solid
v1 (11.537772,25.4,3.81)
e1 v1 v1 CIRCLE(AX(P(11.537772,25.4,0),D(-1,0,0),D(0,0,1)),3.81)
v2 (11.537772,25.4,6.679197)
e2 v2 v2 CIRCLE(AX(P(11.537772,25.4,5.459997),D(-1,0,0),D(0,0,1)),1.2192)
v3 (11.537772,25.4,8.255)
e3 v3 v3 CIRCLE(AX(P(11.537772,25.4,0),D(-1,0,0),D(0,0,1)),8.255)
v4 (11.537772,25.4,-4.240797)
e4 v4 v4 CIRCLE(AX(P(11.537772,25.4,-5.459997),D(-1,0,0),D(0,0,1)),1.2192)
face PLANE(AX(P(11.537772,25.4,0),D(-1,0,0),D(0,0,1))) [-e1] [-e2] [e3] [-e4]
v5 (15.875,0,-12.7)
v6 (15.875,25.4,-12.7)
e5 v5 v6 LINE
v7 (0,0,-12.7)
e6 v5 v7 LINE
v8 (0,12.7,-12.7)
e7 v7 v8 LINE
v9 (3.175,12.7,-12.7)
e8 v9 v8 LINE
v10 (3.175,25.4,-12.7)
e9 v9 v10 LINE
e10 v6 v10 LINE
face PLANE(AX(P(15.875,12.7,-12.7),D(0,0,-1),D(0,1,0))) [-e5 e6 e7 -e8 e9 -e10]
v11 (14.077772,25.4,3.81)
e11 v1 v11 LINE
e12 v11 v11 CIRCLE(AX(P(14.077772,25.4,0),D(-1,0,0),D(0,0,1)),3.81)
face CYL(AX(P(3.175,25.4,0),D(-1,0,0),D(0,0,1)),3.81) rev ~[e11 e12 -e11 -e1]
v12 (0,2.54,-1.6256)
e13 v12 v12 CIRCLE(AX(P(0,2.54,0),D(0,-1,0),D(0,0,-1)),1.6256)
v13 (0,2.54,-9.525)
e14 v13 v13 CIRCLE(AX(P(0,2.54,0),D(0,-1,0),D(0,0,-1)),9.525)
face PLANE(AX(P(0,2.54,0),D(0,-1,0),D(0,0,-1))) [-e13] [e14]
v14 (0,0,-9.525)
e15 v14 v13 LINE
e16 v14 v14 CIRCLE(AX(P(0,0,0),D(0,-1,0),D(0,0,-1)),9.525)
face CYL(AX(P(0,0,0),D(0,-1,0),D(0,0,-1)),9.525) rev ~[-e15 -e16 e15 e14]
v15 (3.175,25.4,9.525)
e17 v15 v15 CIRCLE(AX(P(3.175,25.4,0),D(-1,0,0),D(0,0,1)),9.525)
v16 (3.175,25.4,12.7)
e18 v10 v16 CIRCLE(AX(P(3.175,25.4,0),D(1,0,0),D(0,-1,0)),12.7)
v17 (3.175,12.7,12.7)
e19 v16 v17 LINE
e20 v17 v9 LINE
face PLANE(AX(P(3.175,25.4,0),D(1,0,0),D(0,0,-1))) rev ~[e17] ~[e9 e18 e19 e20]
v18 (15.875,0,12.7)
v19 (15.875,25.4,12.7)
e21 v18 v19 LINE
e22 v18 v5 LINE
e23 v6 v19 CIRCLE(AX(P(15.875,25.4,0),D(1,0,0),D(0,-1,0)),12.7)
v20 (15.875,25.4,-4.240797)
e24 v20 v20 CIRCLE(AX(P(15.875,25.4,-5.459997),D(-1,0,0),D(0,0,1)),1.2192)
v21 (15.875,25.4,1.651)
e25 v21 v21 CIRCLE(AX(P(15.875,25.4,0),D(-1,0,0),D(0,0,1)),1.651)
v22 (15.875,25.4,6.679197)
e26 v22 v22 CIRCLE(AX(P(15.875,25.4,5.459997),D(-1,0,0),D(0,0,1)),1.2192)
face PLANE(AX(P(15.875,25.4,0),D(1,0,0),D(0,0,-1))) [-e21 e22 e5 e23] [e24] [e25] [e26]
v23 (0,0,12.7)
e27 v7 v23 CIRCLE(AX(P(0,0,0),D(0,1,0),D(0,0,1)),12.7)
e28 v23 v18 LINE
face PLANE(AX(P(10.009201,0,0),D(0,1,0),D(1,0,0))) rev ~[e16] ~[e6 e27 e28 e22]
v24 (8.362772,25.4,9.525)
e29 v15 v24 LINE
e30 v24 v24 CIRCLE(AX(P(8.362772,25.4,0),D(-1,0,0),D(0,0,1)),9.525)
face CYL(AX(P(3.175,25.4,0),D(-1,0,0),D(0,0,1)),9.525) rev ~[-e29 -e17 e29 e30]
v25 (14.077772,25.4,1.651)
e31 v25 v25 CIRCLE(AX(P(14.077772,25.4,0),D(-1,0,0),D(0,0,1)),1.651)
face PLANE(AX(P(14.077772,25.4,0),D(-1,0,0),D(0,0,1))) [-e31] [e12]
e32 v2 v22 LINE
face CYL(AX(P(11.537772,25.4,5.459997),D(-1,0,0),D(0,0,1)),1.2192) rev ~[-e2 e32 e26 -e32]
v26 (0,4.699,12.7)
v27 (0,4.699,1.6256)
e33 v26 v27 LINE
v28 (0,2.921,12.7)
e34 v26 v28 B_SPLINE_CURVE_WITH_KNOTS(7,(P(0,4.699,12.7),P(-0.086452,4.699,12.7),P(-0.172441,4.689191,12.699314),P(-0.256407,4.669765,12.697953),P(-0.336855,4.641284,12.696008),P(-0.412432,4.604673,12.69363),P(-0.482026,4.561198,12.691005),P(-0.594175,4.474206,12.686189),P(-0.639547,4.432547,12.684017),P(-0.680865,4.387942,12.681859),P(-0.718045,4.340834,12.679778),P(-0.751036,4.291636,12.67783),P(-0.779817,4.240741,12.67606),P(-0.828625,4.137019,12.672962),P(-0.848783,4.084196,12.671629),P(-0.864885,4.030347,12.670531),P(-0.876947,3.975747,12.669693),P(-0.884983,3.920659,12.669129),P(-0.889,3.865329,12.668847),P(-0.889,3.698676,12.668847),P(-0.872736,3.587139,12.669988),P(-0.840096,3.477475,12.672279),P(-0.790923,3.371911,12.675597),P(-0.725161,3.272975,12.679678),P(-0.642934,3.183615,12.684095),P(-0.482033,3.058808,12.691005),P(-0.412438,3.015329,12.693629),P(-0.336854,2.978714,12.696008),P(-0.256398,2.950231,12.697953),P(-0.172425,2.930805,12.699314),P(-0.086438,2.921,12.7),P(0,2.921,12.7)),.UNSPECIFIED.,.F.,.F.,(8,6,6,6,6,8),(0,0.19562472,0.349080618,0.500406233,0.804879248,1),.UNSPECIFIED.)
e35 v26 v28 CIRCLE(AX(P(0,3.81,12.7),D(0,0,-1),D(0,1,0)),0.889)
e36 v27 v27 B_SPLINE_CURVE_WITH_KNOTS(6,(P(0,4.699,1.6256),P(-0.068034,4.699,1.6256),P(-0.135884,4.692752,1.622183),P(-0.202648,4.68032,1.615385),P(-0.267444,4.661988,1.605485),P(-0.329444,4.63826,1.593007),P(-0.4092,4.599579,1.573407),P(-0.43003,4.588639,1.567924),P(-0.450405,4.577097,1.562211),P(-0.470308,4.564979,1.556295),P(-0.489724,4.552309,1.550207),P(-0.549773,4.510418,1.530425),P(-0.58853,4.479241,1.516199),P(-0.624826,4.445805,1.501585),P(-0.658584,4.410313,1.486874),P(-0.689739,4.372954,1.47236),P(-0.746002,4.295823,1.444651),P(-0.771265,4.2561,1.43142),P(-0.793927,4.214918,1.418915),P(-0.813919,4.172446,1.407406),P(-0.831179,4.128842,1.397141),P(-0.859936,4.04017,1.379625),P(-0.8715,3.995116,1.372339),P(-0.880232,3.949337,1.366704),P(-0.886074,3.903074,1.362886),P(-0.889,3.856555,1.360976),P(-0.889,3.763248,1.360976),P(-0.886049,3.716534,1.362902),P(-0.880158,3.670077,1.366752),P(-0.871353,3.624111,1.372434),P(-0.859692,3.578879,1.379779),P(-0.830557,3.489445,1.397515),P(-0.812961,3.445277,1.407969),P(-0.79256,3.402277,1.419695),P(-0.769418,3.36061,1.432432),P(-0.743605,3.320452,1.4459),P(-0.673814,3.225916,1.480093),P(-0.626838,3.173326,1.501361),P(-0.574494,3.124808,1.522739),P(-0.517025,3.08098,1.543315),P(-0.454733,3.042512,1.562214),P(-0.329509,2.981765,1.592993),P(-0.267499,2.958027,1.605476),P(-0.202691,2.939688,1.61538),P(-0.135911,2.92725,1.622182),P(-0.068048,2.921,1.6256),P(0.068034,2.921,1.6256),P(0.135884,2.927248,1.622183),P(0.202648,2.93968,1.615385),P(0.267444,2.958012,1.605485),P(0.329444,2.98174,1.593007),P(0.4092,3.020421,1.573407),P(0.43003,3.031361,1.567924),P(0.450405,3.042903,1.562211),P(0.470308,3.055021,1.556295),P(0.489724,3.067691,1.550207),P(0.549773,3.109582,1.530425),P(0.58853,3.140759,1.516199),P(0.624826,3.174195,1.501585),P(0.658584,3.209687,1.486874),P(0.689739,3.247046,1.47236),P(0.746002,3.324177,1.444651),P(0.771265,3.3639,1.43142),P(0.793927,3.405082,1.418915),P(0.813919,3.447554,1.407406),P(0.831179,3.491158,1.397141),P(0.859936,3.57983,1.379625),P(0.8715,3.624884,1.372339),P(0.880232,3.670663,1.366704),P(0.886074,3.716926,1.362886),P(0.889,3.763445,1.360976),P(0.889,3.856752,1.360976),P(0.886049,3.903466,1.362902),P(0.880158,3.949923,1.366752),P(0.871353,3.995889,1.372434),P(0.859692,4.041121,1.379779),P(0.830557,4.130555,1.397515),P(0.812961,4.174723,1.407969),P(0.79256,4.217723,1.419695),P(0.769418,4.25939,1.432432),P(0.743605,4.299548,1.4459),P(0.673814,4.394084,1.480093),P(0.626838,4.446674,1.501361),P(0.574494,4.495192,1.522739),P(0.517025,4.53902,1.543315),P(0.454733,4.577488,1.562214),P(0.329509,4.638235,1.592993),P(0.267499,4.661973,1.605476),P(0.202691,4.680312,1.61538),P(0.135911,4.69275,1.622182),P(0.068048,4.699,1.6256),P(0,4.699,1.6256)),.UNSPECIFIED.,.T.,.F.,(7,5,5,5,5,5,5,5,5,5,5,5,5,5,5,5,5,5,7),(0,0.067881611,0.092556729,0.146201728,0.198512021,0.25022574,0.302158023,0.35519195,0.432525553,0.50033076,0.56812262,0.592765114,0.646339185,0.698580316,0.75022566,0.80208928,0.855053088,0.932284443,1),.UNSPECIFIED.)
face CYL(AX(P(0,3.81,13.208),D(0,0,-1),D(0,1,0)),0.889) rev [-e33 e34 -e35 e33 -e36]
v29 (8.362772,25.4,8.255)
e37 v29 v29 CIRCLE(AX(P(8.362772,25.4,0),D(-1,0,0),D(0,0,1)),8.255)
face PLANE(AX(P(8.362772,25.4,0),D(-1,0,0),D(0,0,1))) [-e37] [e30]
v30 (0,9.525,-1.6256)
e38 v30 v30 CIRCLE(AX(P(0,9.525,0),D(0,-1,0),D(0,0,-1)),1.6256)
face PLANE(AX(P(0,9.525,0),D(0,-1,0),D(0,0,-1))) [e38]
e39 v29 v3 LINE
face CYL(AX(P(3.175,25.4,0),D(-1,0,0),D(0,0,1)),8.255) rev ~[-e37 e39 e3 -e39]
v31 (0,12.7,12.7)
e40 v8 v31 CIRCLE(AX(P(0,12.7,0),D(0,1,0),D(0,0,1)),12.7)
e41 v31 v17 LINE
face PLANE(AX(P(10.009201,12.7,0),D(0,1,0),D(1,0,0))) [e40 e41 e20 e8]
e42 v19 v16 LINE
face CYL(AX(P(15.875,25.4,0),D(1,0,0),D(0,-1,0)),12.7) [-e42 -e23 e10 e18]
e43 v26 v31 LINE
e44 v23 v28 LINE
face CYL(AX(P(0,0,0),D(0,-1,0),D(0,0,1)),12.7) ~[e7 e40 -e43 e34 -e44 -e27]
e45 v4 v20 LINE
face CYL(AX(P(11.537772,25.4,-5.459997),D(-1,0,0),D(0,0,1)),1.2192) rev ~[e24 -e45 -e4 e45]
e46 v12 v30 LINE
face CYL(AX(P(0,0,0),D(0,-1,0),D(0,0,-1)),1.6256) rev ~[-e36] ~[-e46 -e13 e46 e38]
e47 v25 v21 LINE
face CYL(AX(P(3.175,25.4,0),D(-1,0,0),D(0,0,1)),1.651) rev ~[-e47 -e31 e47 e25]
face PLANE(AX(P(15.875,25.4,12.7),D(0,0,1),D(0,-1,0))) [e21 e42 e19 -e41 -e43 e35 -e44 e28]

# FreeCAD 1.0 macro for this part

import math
import FreeCAD as App
import Part
import Sketcher

V = App.Vector
Q = App.Units.Quantity

doc = App.newDocument("Part")
params = doc.addObject("Spreadsheet::Sheet", "Params")
for row, (alias, value) in enumerate([
    ("sketch1_diameter", "1 in"),
    ("pad1_length", "0.5 in"),
    ("sketch2_diameter", "0.128 in"),
    ("pocket1_length", "0.375 in"),
    ("sketch3_diameter", "0.75 in"),
    ("pocket2_length", "0.1 in"),
    ("sketch4_radius", "0.5 in"),
    ("sketch4_width", "0.625 in"),
    ("pad2_length", "0.5 in"),
    ("sketch5_height", "0.52 in"),
    ("sketch5_width", "0.035 in"),
    ("groove_angle", "360 deg"),
    ("sketch6_radius", "0.5 in"),
    ("sketch6_width", "0.5 in"),
    ("pad3_length", "0.5 in"),
    ("sketch7_diameter", "0.13 in"),
    ("pocket3_length", "0.5 in"),
    ("sketch8_diameter", "0.3 in"),
    ("pocket4_length", "10.902772 mm"),
    ("sketch9_diameter", "0.65 in"),
    ("pocket5_length", "8.362772 mm"),
    ("sketch10_diameter", "0.75 in"),
    ("pocket6_length", "5.187772 mm"),
    ("sketch11_diameter", "0.096 in"),
    ("pocket7_length", "4.337228 mm"),
], start=1):
    params.set(f"A{row}", alias)
    params.set(f"B{row}", "=" + value)
    params.setAlias(f"B{row}", alias)

body = doc.addObject("PartDesign::Body", "Body")

# Sketch on XZ plane
sketch1 = body.newObject("Sketcher::SketchObject", "Sketch")
sketch1.AttachmentSupport = (doc.getObject("XZ_Plane"), [""])
sketch1.MapMode = "FlatFace"
sketch1.addGeometry(Part.Circle(V(0, 0, 0), V(0, 0, 1), 12.7), False)
sketch1.addConstraint([
    Sketcher.Constraint("Coincident", 0, 3, -1, 1),
    Sketcher.Constraint("Diameter", 0, Q("1 in")),
])
sketch1.setExpression("Constraints[1]", "Params.sketch1_diameter")
pad1 = body.newObject("PartDesign::Pad", "Pad")
pad1.Profile = sketch1
pad1.setExpression("Length", "Params.pad1_length")
pad1.Reversed = True

# Sketch on XZ plane
sketch2 = body.newObject("Sketcher::SketchObject", "Sketch001")
sketch2.AttachmentSupport = (doc.getObject("XZ_Plane"), [""])
sketch2.MapMode = "FlatFace"
sketch2.addGeometry(Part.Circle(V(0, 0, 0), V(0, 0, 1), 1.6256), False)
sketch2.addConstraint([
    Sketcher.Constraint("Coincident", 0, 3, -1, 1),
    Sketcher.Constraint("Diameter", 0, Q("0.128 in")),
])
sketch2.setExpression("Constraints[1]", "Params.sketch2_diameter")
pocket1 = body.newObject("PartDesign::Pocket", "Pocket")
pocket1.Profile = sketch2
pocket1.setExpression("Length", "Params.pocket1_length")

# Sketch on XZ plane
sketch3 = body.newObject("Sketcher::SketchObject", "Sketch002")
sketch3.AttachmentSupport = (doc.getObject("XZ_Plane"), [""])
sketch3.MapMode = "FlatFace"
sketch3.addGeometry(Part.Circle(V(0, 0, 0), V(0, 0, 1), 9.525), False)
sketch3.addConstraint([
    Sketcher.Constraint("Coincident", 0, 3, -1, 1),
    Sketcher.Constraint("Diameter", 0, Q("0.75 in")),
])
sketch3.setExpression("Constraints[1]", "Params.sketch3_diameter")
pocket2 = body.newObject("PartDesign::Pocket", "Pocket001")
pocket2.Profile = sketch3
pocket2.setExpression("Length", "Params.pocket2_length")

# Sketch on XZ plane
sketch4 = body.newObject("Sketcher::SketchObject", "Sketch003")
sketch4.AttachmentSupport = (doc.getObject("XZ_Plane"), [""])
sketch4.MapMode = "FlatFace"
sketch4.addGeometry([
    Part.LineSegment(V(15.875, -12.7, 0), V(0, -12.7, 0)),  # 0
    Part.ArcOfCircle(Part.Circle(V(0, 0, 0), V(0, 0, 1), 12.7), math.radians(-90), math.radians(0)),  # 1
    Part.ArcOfCircle(Part.Circle(V(0, 0, 0), V(0, 0, 1), 12.7), math.radians(0), math.radians(90)),  # 2
    Part.LineSegment(V(0, 12.7, 0), V(15.875, 12.7, 0)),  # 3
    Part.LineSegment(V(15.875, 12.7, 0), V(15.875, -12.7, 0)),  # 4
], False)
sketch4.addConstraint([
    Sketcher.Constraint("Tangent", 0, 2, 1, 1),
    Sketcher.Constraint("Tangent", 1, 2, 2, 1),
    Sketcher.Constraint("Tangent", 2, 2, 3, 1),
    Sketcher.Constraint("Coincident", 3, 2, 4, 1),
    Sketcher.Constraint("Coincident", 4, 2, 0, 1),
    Sketcher.Constraint("Horizontal", 0),
    Sketcher.Constraint("Horizontal", 3),
    Sketcher.Constraint("Vertical", 4),
    Sketcher.Constraint("Coincident", 1, 3, -1, 1),
    Sketcher.Constraint("Equal", 1, 2),
    Sketcher.Constraint("PointOnObject", 1, 2, -1),
    Sketcher.Constraint("Radius", 1, Q("0.5 in")),
    Sketcher.Constraint("DistanceX", 0, 2, 0, 1, Q("0.625 in")),
])
sketch4.setExpression("Constraints[11]", "Params.sketch4_radius")
sketch4.setExpression("Constraints[12]", "Params.sketch4_width")
pad2 = body.newObject("PartDesign::Pad", "Pad001")
pad2.Profile = sketch4
pad2.setExpression("Length", "Params.pad2_length")
pad2.Reversed = True

# Sketch on YZ plane
sketch5 = body.newObject("Sketcher::SketchObject", "Sketch004")
sketch5.AttachmentSupport = (doc.getObject("YZ_Plane"), [""])
sketch5.MapMode = "FlatFace"
sketch5.addGeometry([
    Part.LineSegment(V(3.81, 13.742165, 0), V(3.81, 0, 0)),
    Part.LineSegment(V(3.81, 0, 0), V(4.699, 0, 0)),
    Part.LineSegment(V(4.699, 0, 0), V(4.699, 13.208, 0)),
    Part.LineSegment(V(4.699, 13.208, 0), V(3.81, 13.742165, 0)),
], False)
sketch5.addGeometry(Part.LineSegment(V(3.81, 0, 0), V(3.81, 13.742165, 0)), True)  # axis
sketch5.addConstraint([
    Sketcher.Constraint("Coincident", 0, 2, 1, 1),
    Sketcher.Constraint("Coincident", 1, 2, 2, 1),
    Sketcher.Constraint("Coincident", 2, 2, 3, 1),
    Sketcher.Constraint("Coincident", 3, 2, 0, 1),
    Sketcher.Constraint("Vertical", 0),
    Sketcher.Constraint("Horizontal", 1),
    Sketcher.Constraint("Vertical", 2),
    Sketcher.Constraint("Vertical", 4),
    Sketcher.Constraint("Coincident", 4, 1, 0, 2),
    Sketcher.Constraint("PointOnObject", 0, 2, -1),
    Sketcher.Constraint("Equal", 0, 4),
    Sketcher.Constraint("Angle", 3, Q("149 deg")),
    Sketcher.Constraint("DistanceY", 2, 1, 2, 2, Q("0.52 in")),
    Sketcher.Constraint("DistanceX", 1, 1, 1, 2, Q("0.035 in")),
    Sketcher.Constraint("DistanceX", -1, 1, 0, 2, Q("0.15 in")),
])
sketch5.setExpression("Constraints[12]", "Params.sketch5_height")
sketch5.setExpression("Constraints[13]", "Params.sketch5_width")
groove = body.newObject("PartDesign::Groove", "Groove")
groove.Profile = sketch5
groove.ReferenceAxis = (sketch5, ["Axis0"])
groove.setExpression("Angle", "Params.groove_angle")

# Sketch on YZ plane
sketch6 = body.newObject("Sketcher::SketchObject", "Sketch005")
sketch6.AttachmentSupport = (doc.getObject("YZ_Plane"), [""])
sketch6.MapMode = "FlatFace"
sketch6.AttachmentOffset = App.Placement(V(0, 0, 0.625 * 25.4), App.Rotation())
sketch6.addGeometry([
    Part.LineSegment(V(25.4, 12.7, 0), V(12.7, 12.7, 0)),
    Part.LineSegment(V(12.7, 12.7, 0), V(12.7, -12.7, 0)),
    Part.LineSegment(V(12.7, -12.7, 0), V(25.4, -12.7, 0)),
    Part.ArcOfCircle(Part.Circle(V(25.4, 0, 0), V(0, 0, 1), 12.7), math.radians(-90), math.radians(90)),
], False)
sketch6.addConstraint([
    Sketcher.Constraint("Coincident", 0, 2, 1, 1),
    Sketcher.Constraint("Coincident", 1, 2, 2, 1),
    Sketcher.Constraint("Tangent", 2, 2, 3, 1),
    Sketcher.Constraint("Tangent", 3, 2, 0, 1),
    Sketcher.Constraint("Horizontal", 0),
    Sketcher.Constraint("Vertical", 1),
    Sketcher.Constraint("Horizontal", 2),
    Sketcher.Constraint("PointOnObject", 3, 3, -1),
    Sketcher.Constraint("Radius", 3, Q("0.5 in")),
    Sketcher.Constraint("DistanceX", 0, 2, 0, 1, Q("0.5 in")),
    Sketcher.Constraint("DistanceX", -1, 1, 3, 3, Q("1 in")),
])
sketch6.setExpression("Constraints[8]", "Params.sketch6_radius")
sketch6.setExpression("Constraints[9]", "Params.sketch6_width")
pad3 = body.newObject("PartDesign::Pad", "Pad002")
pad3.Profile = sketch6
pad3.setExpression("Length", "Params.pad3_length")
pad3.Reversed = True

# Sketch on YZ plane
sketch7 = body.newObject("Sketcher::SketchObject", "Sketch006")
sketch7.AttachmentSupport = (doc.getObject("YZ_Plane"), [""])
sketch7.MapMode = "FlatFace"
sketch7.AttachmentOffset = App.Placement(V(0, 0, 0.125 * 25.4), App.Rotation())
sketch7.addGeometry(Part.Circle(V(25.4, 0, 0), V(0, 0, 1), 1.651), False)
sketch7.addConstraint([
    Sketcher.Constraint("PointOnObject", 0, 3, -1),
    Sketcher.Constraint("Diameter", 0, Q("0.13 in")),
    Sketcher.Constraint("DistanceX", -1, 1, 0, 3, Q("1 in")),
])
sketch7.setExpression("Constraints[1]", "Params.sketch7_diameter")
pocket3 = body.newObject("PartDesign::Pocket", "Pocket002")
pocket3.Profile = sketch7
pocket3.setExpression("Length", "Params.pocket3_length")
pocket3.Reversed = True

# Sketch on YZ plane
sketch8 = body.newObject("Sketcher::SketchObject", "Sketch007")
sketch8.AttachmentSupport = (doc.getObject("YZ_Plane"), [""])
sketch8.MapMode = "FlatFace"
sketch8.AttachmentOffset = App.Placement(V(0, 0, 0.125 * 25.4), App.Rotation())
sketch8.addGeometry(Part.Circle(V(25.4, 0, 0), V(0, 0, 1), 3.81), False)
sketch8.addConstraint([
    Sketcher.Constraint("PointOnObject", 0, 3, -1),
    Sketcher.Constraint("Diameter", 0, Q("0.3 in")),
    Sketcher.Constraint("DistanceX", -1, 1, 0, 3, Q("1 in")),
])
sketch8.setExpression("Constraints[1]", "Params.sketch8_diameter")
pocket4 = body.newObject("PartDesign::Pocket", "Pocket003")
pocket4.Profile = sketch8
pocket4.setExpression("Length", "Params.pocket4_length")
pocket4.Reversed = True

# Sketch on YZ plane
sketch9 = body.newObject("Sketcher::SketchObject", "Sketch008")
sketch9.AttachmentSupport = (doc.getObject("YZ_Plane"), [""])
sketch9.MapMode = "FlatFace"
sketch9.AttachmentOffset = App.Placement(V(0, 0, 0.125 * 25.4), App.Rotation())
sketch9.addGeometry(Part.Circle(V(25.4, 0, 0), V(0, 0, 1), 8.255), False)
sketch9.addConstraint([
    Sketcher.Constraint("PointOnObject", 0, 3, -1),
    Sketcher.Constraint("Diameter", 0, Q("0.65 in")),
    Sketcher.Constraint("DistanceX", -1, 1, 0, 3, Q("1 in")),
])
sketch9.setExpression("Constraints[1]", "Params.sketch9_diameter")
pocket5 = body.newObject("PartDesign::Pocket", "Pocket004")
pocket5.Profile = sketch9
pocket5.setExpression("Length", "Params.pocket5_length")
pocket5.Reversed = True

# Sketch on YZ plane
sketch10 = body.newObject("Sketcher::SketchObject", "Sketch009")
sketch10.AttachmentSupport = (doc.getObject("YZ_Plane"), [""])
sketch10.MapMode = "FlatFace"
sketch10.AttachmentOffset = App.Placement(V(0, 0, 0.125 * 25.4), App.Rotation())
sketch10.addGeometry(Part.Circle(V(25.4, 0, 0), V(0, 0, 1), 9.525), False)
sketch10.addConstraint([
    Sketcher.Constraint("PointOnObject", 0, 3, -1),
    Sketcher.Constraint("Diameter", 0, Q("0.75 in")),
    Sketcher.Constraint("DistanceX", -1, 1, 0, 3, Q("1 in")),
])
sketch10.setExpression("Constraints[1]", "Params.sketch10_diameter")
pocket6 = body.newObject("PartDesign::Pocket", "Pocket005")
pocket6.Profile = sketch10
pocket6.setExpression("Length", "Params.pocket6_length")
pocket6.Reversed = True

# Sketch on YZ plane
sketch11 = body.newObject("Sketcher::SketchObject", "Sketch010")
sketch11.AttachmentSupport = (doc.getObject("YZ_Plane"), [""])
sketch11.MapMode = "FlatFace"
sketch11.AttachmentOffset = App.Placement(V(0, 0, 11.537772), App.Rotation())
sketch11.addGeometry([
    Part.Circle(V(25.4, 5.459997, 0), V(0, 0, 1), 1.2192),
    Part.Circle(V(25.4, -5.459997, 0), V(0, 0, 1), 1.2192),
], False)
sketch11.addConstraint([
    Sketcher.Constraint("Equal", 0, 1),
    Sketcher.Constraint("Symmetric", 0, 3, 1, 3, -1),
    Sketcher.Constraint("Diameter", 0, Q("0.096 in")),
    Sketcher.Constraint("DistanceX", -1, 1, 0, 3, Q("1 in")),
    Sketcher.Constraint("DistanceY", -1, 1, 0, 3, 5.459997),
])
sketch11.setExpression("Constraints[2]", "Params.sketch11_diameter")
pocket7 = body.newObject("PartDesign::Pocket", "Pocket006")
pocket7.Profile = sketch11
pocket7.setExpression("Length", "Params.pocket7_length")
pocket7.Reversed = True

doc.recompute()
